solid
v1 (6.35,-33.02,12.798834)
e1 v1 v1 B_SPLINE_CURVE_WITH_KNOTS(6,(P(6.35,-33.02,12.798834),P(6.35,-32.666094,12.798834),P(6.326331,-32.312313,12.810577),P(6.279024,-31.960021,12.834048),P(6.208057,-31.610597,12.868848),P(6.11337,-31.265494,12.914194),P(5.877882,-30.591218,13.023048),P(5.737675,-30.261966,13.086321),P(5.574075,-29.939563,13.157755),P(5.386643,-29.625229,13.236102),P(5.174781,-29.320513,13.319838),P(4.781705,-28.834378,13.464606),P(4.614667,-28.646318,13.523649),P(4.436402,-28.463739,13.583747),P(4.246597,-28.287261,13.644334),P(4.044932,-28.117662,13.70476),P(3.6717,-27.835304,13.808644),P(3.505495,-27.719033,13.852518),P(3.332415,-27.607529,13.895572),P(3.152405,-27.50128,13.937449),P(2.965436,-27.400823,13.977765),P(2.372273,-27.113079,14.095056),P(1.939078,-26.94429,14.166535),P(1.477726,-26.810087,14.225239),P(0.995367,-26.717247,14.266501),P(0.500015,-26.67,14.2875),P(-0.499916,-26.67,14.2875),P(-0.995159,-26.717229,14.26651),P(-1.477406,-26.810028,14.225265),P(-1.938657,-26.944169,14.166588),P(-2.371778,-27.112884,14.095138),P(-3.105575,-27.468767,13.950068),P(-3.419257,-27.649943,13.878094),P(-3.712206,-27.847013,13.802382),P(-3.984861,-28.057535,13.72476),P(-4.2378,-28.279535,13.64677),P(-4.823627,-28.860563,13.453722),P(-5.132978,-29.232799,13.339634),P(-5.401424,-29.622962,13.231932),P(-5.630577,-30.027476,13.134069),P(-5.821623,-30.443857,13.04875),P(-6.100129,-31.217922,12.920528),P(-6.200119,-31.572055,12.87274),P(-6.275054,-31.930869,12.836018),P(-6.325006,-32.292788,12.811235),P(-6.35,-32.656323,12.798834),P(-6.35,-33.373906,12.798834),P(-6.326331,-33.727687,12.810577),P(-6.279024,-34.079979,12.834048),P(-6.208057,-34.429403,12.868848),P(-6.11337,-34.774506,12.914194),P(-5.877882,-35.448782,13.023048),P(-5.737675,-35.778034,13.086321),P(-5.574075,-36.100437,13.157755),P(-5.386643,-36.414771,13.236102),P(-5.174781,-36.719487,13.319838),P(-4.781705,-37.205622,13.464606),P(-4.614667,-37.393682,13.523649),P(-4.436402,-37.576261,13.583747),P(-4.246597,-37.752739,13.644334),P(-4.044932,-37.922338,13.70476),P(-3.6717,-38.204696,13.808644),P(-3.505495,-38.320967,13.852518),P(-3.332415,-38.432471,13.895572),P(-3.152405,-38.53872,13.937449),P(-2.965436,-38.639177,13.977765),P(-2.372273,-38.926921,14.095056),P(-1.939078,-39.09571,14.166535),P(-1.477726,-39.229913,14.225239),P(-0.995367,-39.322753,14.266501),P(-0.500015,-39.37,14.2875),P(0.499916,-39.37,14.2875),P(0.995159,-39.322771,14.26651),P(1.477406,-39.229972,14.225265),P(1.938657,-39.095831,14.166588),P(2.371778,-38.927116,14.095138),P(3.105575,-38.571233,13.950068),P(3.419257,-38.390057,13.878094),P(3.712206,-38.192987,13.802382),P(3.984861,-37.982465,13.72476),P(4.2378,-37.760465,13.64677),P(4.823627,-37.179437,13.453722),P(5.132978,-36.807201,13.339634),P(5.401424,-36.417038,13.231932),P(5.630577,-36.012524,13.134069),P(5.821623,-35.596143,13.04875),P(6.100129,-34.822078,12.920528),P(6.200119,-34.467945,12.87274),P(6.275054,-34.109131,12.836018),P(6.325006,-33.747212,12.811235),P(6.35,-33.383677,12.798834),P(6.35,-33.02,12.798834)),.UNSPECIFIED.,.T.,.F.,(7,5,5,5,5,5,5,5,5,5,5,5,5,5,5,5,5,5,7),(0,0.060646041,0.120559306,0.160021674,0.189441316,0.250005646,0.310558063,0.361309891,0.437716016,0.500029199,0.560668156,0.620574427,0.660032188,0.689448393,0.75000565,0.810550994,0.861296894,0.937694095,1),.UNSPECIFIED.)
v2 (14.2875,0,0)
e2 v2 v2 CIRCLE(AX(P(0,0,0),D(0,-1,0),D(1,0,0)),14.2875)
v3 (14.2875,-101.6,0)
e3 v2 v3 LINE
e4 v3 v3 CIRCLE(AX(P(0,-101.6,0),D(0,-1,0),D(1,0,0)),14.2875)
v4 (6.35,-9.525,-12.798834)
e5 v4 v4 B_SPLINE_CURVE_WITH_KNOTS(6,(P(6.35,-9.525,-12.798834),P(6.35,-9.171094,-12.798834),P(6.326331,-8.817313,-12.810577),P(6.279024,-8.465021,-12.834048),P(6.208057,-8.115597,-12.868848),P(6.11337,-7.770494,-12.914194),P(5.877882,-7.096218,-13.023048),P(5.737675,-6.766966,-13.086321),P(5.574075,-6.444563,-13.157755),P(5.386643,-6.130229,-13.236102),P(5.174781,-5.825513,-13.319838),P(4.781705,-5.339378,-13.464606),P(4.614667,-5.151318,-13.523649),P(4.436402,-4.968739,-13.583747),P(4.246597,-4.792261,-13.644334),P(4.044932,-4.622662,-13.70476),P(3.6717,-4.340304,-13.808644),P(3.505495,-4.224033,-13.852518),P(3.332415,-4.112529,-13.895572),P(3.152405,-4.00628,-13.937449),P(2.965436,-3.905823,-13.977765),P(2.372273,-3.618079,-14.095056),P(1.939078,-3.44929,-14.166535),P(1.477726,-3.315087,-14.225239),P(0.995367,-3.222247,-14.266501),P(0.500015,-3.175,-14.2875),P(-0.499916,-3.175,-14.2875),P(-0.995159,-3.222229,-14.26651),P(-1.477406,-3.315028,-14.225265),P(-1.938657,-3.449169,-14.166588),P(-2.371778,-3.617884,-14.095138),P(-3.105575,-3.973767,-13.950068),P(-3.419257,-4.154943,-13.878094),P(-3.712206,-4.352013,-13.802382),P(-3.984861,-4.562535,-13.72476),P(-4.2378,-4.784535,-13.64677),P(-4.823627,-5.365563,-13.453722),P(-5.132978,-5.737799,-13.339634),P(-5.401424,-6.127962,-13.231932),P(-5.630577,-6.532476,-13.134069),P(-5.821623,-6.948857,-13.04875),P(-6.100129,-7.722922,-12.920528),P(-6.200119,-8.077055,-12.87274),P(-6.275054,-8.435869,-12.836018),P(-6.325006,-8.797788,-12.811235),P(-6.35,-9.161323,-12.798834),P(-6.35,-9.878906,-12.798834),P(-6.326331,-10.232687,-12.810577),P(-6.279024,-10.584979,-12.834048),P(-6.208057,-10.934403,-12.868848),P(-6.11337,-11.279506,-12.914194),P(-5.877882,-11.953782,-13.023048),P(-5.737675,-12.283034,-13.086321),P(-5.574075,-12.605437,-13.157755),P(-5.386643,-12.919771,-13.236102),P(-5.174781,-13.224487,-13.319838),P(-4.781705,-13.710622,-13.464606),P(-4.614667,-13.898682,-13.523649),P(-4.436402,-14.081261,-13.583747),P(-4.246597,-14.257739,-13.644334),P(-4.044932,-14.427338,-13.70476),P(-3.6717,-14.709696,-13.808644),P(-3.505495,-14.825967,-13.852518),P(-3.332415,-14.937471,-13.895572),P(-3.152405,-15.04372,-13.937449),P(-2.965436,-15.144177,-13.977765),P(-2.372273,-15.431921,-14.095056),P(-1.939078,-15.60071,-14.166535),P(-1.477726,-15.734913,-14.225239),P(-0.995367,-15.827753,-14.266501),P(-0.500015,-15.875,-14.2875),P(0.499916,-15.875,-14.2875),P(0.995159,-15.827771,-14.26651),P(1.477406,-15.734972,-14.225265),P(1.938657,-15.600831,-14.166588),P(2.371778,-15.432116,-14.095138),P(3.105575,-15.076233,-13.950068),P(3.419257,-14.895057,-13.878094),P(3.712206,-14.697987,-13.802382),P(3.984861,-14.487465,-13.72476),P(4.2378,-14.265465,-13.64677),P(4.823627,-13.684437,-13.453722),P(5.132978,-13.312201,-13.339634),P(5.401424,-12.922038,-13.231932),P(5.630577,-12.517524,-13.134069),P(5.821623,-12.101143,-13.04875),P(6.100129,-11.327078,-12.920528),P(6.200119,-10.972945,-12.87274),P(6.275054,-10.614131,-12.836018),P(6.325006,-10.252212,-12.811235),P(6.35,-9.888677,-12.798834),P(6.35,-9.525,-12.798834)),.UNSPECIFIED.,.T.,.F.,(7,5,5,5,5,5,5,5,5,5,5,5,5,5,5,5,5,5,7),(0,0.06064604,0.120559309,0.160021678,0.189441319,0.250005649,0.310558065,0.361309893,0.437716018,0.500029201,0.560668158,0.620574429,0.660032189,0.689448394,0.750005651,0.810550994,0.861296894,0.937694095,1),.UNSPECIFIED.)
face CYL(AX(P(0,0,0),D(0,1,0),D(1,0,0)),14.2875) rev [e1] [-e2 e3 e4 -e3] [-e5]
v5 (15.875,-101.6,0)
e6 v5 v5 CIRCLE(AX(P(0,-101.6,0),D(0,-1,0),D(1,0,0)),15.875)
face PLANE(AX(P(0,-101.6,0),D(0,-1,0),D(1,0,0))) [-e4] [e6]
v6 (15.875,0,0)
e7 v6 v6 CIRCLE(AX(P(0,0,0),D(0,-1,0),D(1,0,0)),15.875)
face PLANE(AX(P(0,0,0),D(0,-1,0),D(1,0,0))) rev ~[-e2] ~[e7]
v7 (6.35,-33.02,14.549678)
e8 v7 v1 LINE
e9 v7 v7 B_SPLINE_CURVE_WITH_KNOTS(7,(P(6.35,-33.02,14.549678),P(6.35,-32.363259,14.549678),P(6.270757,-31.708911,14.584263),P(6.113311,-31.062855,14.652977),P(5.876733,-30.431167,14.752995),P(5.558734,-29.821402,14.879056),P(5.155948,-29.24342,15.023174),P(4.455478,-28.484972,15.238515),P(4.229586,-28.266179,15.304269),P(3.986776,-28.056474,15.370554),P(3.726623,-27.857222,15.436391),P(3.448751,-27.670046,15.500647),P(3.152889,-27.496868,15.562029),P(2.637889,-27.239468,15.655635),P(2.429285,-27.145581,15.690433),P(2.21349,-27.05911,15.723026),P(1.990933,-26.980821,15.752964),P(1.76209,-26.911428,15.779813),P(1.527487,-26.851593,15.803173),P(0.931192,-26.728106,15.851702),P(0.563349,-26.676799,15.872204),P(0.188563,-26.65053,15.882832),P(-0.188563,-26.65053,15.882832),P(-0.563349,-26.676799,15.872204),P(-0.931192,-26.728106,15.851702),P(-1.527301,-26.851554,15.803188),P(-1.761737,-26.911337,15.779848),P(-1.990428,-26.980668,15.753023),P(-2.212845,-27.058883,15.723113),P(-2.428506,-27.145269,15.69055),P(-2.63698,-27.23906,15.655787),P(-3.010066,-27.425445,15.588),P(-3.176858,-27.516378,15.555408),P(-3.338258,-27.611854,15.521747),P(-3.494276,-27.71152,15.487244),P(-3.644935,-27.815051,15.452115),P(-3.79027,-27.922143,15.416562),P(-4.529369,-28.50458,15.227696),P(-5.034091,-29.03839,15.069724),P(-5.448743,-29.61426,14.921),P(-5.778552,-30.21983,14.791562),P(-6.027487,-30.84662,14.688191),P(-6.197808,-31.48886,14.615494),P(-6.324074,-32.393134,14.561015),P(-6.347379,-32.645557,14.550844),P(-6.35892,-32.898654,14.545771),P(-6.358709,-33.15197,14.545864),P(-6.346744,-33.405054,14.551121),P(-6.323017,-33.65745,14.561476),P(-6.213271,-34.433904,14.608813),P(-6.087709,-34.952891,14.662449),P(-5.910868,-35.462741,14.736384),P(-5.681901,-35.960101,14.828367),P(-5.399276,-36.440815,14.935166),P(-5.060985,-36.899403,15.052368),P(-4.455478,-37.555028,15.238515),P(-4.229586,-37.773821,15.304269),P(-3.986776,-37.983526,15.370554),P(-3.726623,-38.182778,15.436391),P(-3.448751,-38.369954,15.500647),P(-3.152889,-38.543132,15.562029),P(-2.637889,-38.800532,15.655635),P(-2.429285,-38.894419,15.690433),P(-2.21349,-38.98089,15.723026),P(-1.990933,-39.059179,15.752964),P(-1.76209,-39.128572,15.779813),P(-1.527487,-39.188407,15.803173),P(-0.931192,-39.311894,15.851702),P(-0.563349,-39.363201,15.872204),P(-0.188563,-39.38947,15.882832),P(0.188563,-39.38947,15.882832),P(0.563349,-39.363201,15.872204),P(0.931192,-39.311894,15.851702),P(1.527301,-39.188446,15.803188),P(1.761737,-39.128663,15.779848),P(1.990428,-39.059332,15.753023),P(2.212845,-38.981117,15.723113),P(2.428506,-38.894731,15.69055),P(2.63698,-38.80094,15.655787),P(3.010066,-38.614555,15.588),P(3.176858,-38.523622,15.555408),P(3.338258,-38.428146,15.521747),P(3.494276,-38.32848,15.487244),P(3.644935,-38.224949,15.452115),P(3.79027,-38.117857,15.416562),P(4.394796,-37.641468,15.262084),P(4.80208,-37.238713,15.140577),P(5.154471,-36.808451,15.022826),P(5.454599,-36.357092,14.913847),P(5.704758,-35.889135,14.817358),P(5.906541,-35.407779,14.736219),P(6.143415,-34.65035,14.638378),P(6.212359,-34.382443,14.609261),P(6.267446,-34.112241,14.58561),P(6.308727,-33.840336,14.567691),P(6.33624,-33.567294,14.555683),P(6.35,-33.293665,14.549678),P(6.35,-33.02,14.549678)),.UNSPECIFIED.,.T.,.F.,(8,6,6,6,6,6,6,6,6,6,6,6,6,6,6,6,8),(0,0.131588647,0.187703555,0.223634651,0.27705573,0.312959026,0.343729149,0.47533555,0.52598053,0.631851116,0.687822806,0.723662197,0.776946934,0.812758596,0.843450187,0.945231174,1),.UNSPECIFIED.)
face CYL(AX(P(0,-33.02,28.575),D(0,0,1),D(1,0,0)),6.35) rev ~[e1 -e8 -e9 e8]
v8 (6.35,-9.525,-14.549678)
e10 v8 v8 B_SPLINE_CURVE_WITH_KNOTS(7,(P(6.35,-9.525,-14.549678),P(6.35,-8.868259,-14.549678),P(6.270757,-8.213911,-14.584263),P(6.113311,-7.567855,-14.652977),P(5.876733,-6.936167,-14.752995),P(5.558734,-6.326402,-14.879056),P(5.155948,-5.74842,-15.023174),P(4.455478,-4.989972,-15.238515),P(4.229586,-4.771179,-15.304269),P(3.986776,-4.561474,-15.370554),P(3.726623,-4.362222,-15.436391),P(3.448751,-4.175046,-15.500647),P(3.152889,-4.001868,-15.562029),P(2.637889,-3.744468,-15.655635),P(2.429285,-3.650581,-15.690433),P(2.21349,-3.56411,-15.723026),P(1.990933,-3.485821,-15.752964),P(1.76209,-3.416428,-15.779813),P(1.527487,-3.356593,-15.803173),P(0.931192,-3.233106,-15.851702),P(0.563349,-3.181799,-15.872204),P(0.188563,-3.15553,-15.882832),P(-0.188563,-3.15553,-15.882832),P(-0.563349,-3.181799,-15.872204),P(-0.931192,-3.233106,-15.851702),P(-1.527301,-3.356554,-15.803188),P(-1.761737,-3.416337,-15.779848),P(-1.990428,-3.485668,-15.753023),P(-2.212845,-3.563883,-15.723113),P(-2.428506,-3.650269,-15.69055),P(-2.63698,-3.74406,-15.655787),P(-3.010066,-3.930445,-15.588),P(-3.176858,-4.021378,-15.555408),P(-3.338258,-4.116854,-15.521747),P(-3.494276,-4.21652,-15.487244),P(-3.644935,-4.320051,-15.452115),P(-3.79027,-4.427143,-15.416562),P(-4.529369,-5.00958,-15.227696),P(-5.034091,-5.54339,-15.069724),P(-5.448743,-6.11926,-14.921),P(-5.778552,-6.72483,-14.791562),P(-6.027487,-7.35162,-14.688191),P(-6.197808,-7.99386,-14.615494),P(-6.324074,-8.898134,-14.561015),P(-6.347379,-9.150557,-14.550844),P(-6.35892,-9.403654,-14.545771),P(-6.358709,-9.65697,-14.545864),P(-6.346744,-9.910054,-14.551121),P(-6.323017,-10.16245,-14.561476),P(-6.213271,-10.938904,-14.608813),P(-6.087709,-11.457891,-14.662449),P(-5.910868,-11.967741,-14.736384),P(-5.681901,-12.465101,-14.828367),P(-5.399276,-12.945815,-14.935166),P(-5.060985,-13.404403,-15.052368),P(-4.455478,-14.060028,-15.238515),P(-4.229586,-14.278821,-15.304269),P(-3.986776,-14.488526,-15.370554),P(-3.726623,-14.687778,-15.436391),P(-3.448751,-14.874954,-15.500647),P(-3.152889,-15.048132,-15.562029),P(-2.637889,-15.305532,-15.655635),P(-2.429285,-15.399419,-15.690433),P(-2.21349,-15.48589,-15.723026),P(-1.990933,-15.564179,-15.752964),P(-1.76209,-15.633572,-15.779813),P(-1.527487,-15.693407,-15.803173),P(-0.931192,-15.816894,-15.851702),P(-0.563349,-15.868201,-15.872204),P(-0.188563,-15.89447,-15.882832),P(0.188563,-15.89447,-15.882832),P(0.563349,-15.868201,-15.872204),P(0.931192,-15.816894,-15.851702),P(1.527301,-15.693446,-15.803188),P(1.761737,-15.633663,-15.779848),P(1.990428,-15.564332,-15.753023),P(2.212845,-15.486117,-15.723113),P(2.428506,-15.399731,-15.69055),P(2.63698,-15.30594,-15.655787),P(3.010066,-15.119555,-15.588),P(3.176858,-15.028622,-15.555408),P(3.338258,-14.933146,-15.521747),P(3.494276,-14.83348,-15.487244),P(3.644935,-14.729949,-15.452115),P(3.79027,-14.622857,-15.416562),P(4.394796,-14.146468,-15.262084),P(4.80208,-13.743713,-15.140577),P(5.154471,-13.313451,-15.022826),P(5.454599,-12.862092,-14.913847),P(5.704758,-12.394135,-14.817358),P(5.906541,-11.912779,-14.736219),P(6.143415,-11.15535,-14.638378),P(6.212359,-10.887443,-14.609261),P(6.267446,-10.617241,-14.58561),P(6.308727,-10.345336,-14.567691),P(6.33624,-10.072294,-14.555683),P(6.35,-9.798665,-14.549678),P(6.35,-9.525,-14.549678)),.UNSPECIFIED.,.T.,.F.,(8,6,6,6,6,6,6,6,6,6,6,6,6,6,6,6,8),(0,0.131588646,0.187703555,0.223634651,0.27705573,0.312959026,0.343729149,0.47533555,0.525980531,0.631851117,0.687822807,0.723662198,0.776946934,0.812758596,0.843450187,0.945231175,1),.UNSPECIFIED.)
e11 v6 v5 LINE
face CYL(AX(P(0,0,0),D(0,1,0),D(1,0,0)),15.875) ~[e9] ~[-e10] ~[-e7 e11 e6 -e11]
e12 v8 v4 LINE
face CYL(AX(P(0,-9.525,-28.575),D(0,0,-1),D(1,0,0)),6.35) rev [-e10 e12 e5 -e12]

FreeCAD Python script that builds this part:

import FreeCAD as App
import Part
import Sketcher

V = App.Vector
Q = App.Units.Quantity

doc = App.newDocument("Part")
body = doc.addObject("PartDesign::Body", "Body")

sketch1 = doc.addObject("Sketcher::SketchObject", "Sketch")
body.addObject(sketch1)
sketch1.AttachmentSupport = (doc.XZ_Plane, [""])
sketch1.MapMode = "FlatFace"
sketch1.addGeometry([
    Part.Circle(V(0, 0, 0), V(0, 0, 1), 16),
    Part.Circle(V(0, 0, 0), V(0, 0, 1), 14),
], False)
sketch1.addConstraint([
    Sketcher.Constraint("Coincident", 0, 3, -1, 1),
    Sketcher.Constraint("Coincident", 1, 3, -1, 1),
    Sketcher.Constraint("Diameter", 0, Q("1.25 in")),
    Sketcher.Constraint("Diameter", 1, Q("1.125 in")),
])
pad1 = doc.addObject("PartDesign::Pad", "Pad")
body.addObject(pad1)
pad1.Profile = sketch1
pad1.Length = Q("4 in")

sketch2 = doc.addObject("Sketcher::SketchObject", "Sketch001")
body.addObject(sketch2)
sketch2.AttachmentSupport = (doc.XY_Plane, [""])
sketch2.MapMode = "FlatFace"
sketch2.AttachmentOffset = App.Placement(V(0, 0, 1.125 * 25.4), App.Rotation())
sketch2.addGeometry(Part.Circle(V(0, -33, 0), V(0, 0, 1), 6), False)
sketch2.addConstraint([
    Sketcher.Constraint("PointOnObject", 0, 3, -2),
    Sketcher.Constraint("Diameter", 0, Q("0.5 in")),
    Sketcher.Constraint("DistanceY", 0, 3, -1, 1, Q("1.3 in")),
])
pocket1 = doc.addObject("PartDesign::Pocket", "Pocket")
body.addObject(pocket1)
pocket1.Profile = sketch2
pocket1.Length = Q("1 in")

sketch3 = doc.addObject("Sketcher::SketchObject", "Sketch002")
body.addObject(sketch3)
sketch3.AttachmentSupport = (doc.XY_Plane, [""])
sketch3.MapMode = "FlatFace"
sketch3.AttachmentOffset = App.Placement(V(0, 0, -1.125 * 25.4), App.Rotation())
sketch3.addGeometry(Part.Circle(V(0, -10, 0), V(0, 0, 1), 6), False)
sketch3.addConstraint([
    Sketcher.Constraint("PointOnObject", 0, 3, -2),
    Sketcher.Constraint("Diameter", 0, Q("0.5 in")),
    Sketcher.Constraint("DistanceY", 0, 3, -1, 1, Q("0.375 in")),
])
pocket2 = doc.addObject("PartDesign::Pocket", "Pocket001")
body.addObject(pocket2)
pocket2.Profile = sketch3
pocket2.Length = Q("1 in")
pocket2.Reversed = True

doc.recompute()
